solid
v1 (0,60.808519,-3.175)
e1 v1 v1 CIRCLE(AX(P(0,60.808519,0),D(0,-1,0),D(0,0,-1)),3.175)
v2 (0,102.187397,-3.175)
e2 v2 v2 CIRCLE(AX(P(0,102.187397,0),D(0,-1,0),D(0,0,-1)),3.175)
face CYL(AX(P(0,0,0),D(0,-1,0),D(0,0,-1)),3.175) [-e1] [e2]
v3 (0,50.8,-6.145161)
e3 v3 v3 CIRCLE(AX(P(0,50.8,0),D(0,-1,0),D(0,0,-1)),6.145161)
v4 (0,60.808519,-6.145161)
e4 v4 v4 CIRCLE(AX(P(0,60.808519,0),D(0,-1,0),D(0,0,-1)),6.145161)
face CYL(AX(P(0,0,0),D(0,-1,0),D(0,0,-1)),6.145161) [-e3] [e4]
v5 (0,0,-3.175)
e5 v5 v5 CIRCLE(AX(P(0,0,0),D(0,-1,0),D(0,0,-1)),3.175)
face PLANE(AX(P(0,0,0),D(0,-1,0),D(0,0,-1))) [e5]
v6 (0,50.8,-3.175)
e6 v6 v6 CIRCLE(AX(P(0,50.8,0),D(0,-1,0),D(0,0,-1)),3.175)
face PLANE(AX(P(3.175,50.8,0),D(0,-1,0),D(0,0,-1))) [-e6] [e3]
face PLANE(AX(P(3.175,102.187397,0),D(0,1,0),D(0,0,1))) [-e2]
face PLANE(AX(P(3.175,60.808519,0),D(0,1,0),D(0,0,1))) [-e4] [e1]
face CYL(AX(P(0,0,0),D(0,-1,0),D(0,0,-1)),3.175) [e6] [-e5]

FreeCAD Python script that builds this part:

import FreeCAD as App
import Part
import Sketcher

V = App.Vector
Q = App.Units.Quantity

doc = App.newDocument("Part")
body = doc.addObject("PartDesign::Body", "Body")

# Sketch on XY plane
sketch1 = body.newObject("Sketcher::SketchObject", "Sketch")
sketch1.AttachmentSupport = (doc.getObject("XY_Plane"), [""])
sketch1.MapMode = "FlatFace"
sketch1.addGeometry(Part.LineSegment(V(0, 102.2, 0), V(0, 0, 0)), False)
sketch1.addGeometry(Part.LineSegment(V(0, 0, 0), V(3.2, 0, 0)), False)
sketch1.addGeometry(Part.LineSegment(V(3.2, 0, 0), V(3.2, 50.8, 0)), False)
sketch1.addGeometry(Part.LineSegment(V(3.2, 50.8, 0), V(6.1, 50.8, 0)), False)
sketch1.addGeometry(Part.LineSegment(V(6.1, 50.8, 0), V(6.1, 60.8, 0)), False)
sketch1.addGeometry(Part.LineSegment(V(6.1, 60.8, 0), V(3.2, 60.8, 0)), False)
sketch1.addGeometry(Part.LineSegment(V(3.2, 60.8, 0), V(3.2, 102.2, 0)), False)
sketch1.addGeometry(Part.LineSegment(V(3.2, 102.2, 0), V(0, 102.2, 0)), False)
sketch1.addConstraint(Sketcher.Constraint("Coincident", 0, 2, 1, 1))
sketch1.addConstraint(Sketcher.Constraint("Coincident", 1, 2, 2, 1))
sketch1.addConstraint(Sketcher.Constraint("Coincident", 2, 2, 3, 1))
sketch1.addConstraint(Sketcher.Constraint("Coincident", 3, 2, 4, 1))
sketch1.addConstraint(Sketcher.Constraint("Coincident", 4, 2, 5, 1))
sketch1.addConstraint(Sketcher.Constraint("Coincident", 5, 2, 6, 1))
sketch1.addConstraint(Sketcher.Constraint("Coincident", 6, 2, 7, 1))
sketch1.addConstraint(Sketcher.Constraint("Coincident", 7, 2, 0, 1))
sketch1.addConstraint(Sketcher.Constraint("Vertical", 0))
sketch1.addConstraint(Sketcher.Constraint("Horizontal", 1))
sketch1.addConstraint(Sketcher.Constraint("Vertical", 2))
sketch1.addConstraint(Sketcher.Constraint("Horizontal", 3))
sketch1.addConstraint(Sketcher.Constraint("Vertical", 4))
sketch1.addConstraint(Sketcher.Constraint("Horizontal", 5))
sketch1.addConstraint(Sketcher.Constraint("Vertical", 6))
sketch1.addConstraint(Sketcher.Constraint("Horizontal", 7))
sketch1.addConstraint(Sketcher.Constraint("Coincident", 0, 2, -1, 1))
sketch1.addConstraint(Sketcher.Constraint("Vertical", 2, 2, 5, 2))
sketch1.addConstraint(Sketcher.Constraint("DistanceY", 2, 1, 2, 2, Q("2 in")))
sketch1.addConstraint(Sketcher.Constraint("DistanceX", 1, 1, 1, 2, Q("0.125 in")))
sketch1.addConstraint(Sketcher.Constraint("DistanceX", 3, 1, 3, 2, Q("2.970161 mm")))
sketch1.addConstraint(Sketcher.Constraint("DistanceY", 4, 1, 4, 2, Q("10.008519 mm")))
sketch1.addConstraint(Sketcher.Constraint("DistanceY", 6, 1, 6, 2, Q("41.378879 mm")))
revolution = body.newObject("PartDesign::Revolution", "Revolution")
revolution.Profile = sketch1
revolution.ReferenceAxis = (sketch1, ["V_Axis"])
revolution.Angle = 360

doc.recompute()
